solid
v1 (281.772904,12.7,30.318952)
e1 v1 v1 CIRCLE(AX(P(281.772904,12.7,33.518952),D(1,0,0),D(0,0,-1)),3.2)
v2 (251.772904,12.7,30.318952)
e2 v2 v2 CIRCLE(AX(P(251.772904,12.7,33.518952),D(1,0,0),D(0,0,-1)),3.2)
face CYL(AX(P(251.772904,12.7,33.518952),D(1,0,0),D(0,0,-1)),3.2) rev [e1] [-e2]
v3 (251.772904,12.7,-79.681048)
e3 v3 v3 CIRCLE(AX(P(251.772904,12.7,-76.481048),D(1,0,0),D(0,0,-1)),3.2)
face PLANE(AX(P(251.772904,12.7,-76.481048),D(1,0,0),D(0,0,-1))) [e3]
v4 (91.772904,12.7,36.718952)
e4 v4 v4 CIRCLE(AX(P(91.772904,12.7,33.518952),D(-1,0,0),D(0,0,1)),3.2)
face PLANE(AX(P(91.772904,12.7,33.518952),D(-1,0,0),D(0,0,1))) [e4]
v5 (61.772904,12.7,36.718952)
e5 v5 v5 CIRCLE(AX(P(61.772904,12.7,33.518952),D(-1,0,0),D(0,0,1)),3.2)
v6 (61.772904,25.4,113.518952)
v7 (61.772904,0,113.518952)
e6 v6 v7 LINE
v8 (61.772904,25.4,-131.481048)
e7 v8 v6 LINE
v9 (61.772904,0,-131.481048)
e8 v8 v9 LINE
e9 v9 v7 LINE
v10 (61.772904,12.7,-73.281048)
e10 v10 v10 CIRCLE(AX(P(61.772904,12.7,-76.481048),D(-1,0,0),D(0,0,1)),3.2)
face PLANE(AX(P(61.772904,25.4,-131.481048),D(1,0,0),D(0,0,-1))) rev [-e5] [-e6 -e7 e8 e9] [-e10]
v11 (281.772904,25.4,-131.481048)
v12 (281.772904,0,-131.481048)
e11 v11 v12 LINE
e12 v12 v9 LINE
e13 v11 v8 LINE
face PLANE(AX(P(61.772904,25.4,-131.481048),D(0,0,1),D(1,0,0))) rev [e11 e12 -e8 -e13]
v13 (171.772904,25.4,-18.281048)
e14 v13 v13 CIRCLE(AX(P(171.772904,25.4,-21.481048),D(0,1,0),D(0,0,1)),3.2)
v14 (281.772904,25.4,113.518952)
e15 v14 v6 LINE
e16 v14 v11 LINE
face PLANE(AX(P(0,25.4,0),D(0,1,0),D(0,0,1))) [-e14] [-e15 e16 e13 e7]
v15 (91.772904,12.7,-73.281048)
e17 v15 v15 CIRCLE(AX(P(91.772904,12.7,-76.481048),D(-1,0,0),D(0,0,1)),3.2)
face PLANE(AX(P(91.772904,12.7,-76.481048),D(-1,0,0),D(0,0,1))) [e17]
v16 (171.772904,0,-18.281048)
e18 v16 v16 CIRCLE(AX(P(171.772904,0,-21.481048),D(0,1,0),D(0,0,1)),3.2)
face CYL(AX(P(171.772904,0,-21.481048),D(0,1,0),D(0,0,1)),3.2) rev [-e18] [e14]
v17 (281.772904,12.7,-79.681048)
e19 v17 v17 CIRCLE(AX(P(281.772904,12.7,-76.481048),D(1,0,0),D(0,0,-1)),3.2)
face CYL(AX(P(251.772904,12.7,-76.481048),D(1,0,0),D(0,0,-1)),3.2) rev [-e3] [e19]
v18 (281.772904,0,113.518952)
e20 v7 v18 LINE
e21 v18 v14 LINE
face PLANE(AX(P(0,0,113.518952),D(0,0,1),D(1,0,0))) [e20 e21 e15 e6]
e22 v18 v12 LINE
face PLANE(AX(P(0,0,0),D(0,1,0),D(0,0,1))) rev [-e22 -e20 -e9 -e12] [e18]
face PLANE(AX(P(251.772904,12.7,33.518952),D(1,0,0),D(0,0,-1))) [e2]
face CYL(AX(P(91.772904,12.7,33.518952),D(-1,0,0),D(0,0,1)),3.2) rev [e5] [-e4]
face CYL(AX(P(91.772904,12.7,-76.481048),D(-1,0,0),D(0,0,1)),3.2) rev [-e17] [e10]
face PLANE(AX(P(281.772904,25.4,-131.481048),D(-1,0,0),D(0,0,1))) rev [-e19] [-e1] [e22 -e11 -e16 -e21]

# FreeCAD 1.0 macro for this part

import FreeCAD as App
import Part
import Sketcher
from FreeCAD import Vector
Q = App.Units.Quantity


def add_polygon(sketch, points):
    """Adds a closed chain of lines whose ends are joined by coincident constraints."""
    first, n = sketch.GeometryCount, len(points)
    for a, b in zip(points, points[1:] + points[:1]):
        sketch.addGeometry(Part.LineSegment(App.Vector(*a, 0), App.Vector(*b, 0)), False)
    for i in range(n):
        sketch.addConstraint(Sketcher.Constraint("Coincident", first + i, 2, first + (i + 1) % n, 1))

doc = App.newDocument("Part")
body = doc.addObject("PartDesign::Body", "Body")

# Sketch on XZ plane
sketch1 = body.newObject("Sketcher::SketchObject", "Sketch")
sketch1.AttachmentSupport = (doc.getObject("XZ_Plane"), [""])
sketch1.MapMode = "FlatFace"
add_polygon(sketch1, [(61.772904, -131.481048), (61.772904, 88.518952), (281.772904, 88.518952), (281.772904, -131.481048)])  # lines 0-3
sketch1.addConstraint(Sketcher.Constraint("Vertical", 0))
sketch1.addConstraint(Sketcher.Constraint("Horizontal", 1))
sketch1.addConstraint(Sketcher.Constraint("Vertical", 2))
sketch1.addConstraint(Sketcher.Constraint("Horizontal", 3))
sketch1.addConstraint(Sketcher.Constraint("Equal", 3, 0))
sketch1.addConstraint(Sketcher.Constraint("DistanceX", 1, 1, 1, 2, Q("220 mm")))
sketch1.addConstraint(Sketcher.Constraint("DistanceX", -1, 1, 0, 2, Q("61.772904 mm")))
sketch1.addConstraint(Sketcher.Constraint("DistanceY", -1, 1, 0, 2, Q("88.518952 mm")))
pad1 = body.newObject("PartDesign::Pad", "Pad")
pad1.Profile = sketch1
pad1.Length = 25.4
pad1.Reversed = True

# Sketch on XZ plane
sketch2 = body.newObject("Sketcher::SketchObject", "Sketch001")
sketch2.AttachmentSupport = (doc.getObject("XZ_Plane"), [""])
sketch2.MapMode = "FlatFace"
sketch2.AttachmentOffset = App.Placement(Vector(0, 0, -25.4), App.Rotation())
sketch2.addGeometry(Part.Circle(Vector(171.772904, -21.481048, 0), Vector(0, 0, 1), 3.2), False)
sketch2.addConstraint(Sketcher.Constraint("Diameter", 0, Q("6.4 mm")))
sketch2.addConstraint(Sketcher.Constraint("DistanceX", -1, 1, 0, 3, Q("171.772904 mm")))
sketch2.addConstraint(Sketcher.Constraint("DistanceY", 0, 3, -1, 1, Q("21.481048 mm")))
pocket1 = body.newObject("PartDesign::Pocket", "Pocket")
pocket1.Profile = sketch2
pocket1.Length = 25.4
pocket1.Reversed = True

# Sketch on YZ plane
sketch3 = body.newObject("Sketcher::SketchObject", "Sketch002")
sketch3.AttachmentSupport = (doc.getObject("YZ_Plane"), [""])
sketch3.MapMode = "FlatFace"
sketch3.AttachmentOffset = App.Placement(Vector(0, 0, 61.772904), App.Rotation())
sketch3.addGeometry(Part.Circle(Vector(12.7, -76.481048, 0), Vector(0, 0, 1), 3.2), False)
sketch3.addGeometry(Part.Circle(Vector(12.7, 33.518952, 0), Vector(0, 0, 1), 3.2), False)
sketch3.addConstraint(Sketcher.Constraint("Equal", 0, 1))
sketch3.addConstraint(Sketcher.Constraint("Vertical", 0, 3, 1, 3))
sketch3.addConstraint(Sketcher.Constraint("Diameter", 0, Q("6.4 mm")))
sketch3.addConstraint(Sketcher.Constraint("DistanceY", 0, 3, 1, 3, Q("110 mm")))
sketch3.addConstraint(Sketcher.Constraint("DistanceX", -1, 1, 0, 3, Q("12.7 mm")))
sketch3.addConstraint(Sketcher.Constraint("DistanceY", 0, 3, -1, 1, Q("76.481048 mm")))
pocket2 = body.newObject("PartDesign::Pocket", "Pocket001")
pocket2.Profile = sketch3
pocket2.Length = 30
pocket2.Reversed = True

# Sketch on YZ plane
sketch4 = body.newObject("Sketcher::SketchObject", "Sketch003")
sketch4.AttachmentSupport = (doc.getObject("YZ_Plane"), [""])
sketch4.MapMode = "FlatFace"
sketch4.AttachmentOffset = App.Placement(Vector(0, 0, 251.772904), App.Rotation())
sketch4.addGeometry(Part.Circle(Vector(12.7, 33.518952, 0), Vector(0, 0, 1), 3.2), False)
sketch4.addGeometry(Part.Circle(Vector(12.7, -76.481048, 0), Vector(0, 0, 1), 3.2), False)
sketch4.addConstraint(Sketcher.Constraint("Equal", 0, 1))
sketch4.addConstraint(Sketcher.Constraint("Vertical", 0, 3, 1, 3))
sketch4.addConstraint(Sketcher.Constraint("Diameter", 0, Q("6.4 mm")))
sketch4.addConstraint(Sketcher.Constraint("DistanceY", 1, 3, 0, 3, Q("110 mm")))
sketch4.addConstraint(Sketcher.Constraint("DistanceX", -1, 1, 0, 3, Q("12.7 mm")))
sketch4.addConstraint(Sketcher.Constraint("DistanceY", -1, 1, 0, 3, Q("33.518952 mm")))
pocket3 = body.newObject("PartDesign::Pocket", "Pocket002")
pocket3.Profile = sketch4
pocket3.Length = 30
pocket3.Reversed = True

# Sketch on XY plane
sketch5 = body.newObject("Sketcher::SketchObject", "Sketch004")
sketch5.AttachmentSupport = (doc.getObject("XY_Plane"), [""])
sketch5.MapMode = "FlatFace"
sketch5.AttachmentOffset = App.Placement(Vector(0, 0, 88.518952), App.Rotation())
add_polygon(sketch5, [(61.772904, 25.4), (61.772904, 0), (281.772904, 0), (281.772904, 25.4)])  # lines 0-3
sketch5.addConstraint(Sketcher.Constraint("Vertical", 0))
sketch5.addConstraint(Sketcher.Constraint("Horizontal", 1))
sketch5.addConstraint(Sketcher.Constraint("Vertical", 2))
sketch5.addConstraint(Sketcher.Constraint("Horizontal", 3))
sketch5.addConstraint(Sketcher.Constraint("PointOnObject", 0, 2, -1))
sketch5.addConstraint(Sketcher.Constraint("DistanceX", 1, 1, 1, 2, Q("220 mm")))
sketch5.addConstraint(Sketcher.Constraint("DistanceY", 0, 2, 0, 1, Q("25.4 mm")))
sketch5.addConstraint(Sketcher.Constraint("DistanceX", -1, 1, 0, 2, Q("61.772904 mm")))
pad2 = body.newObject("PartDesign::Pad", "Pad001")
pad2.Profile = sketch5
pad2.Length = 25

doc.recompute()
